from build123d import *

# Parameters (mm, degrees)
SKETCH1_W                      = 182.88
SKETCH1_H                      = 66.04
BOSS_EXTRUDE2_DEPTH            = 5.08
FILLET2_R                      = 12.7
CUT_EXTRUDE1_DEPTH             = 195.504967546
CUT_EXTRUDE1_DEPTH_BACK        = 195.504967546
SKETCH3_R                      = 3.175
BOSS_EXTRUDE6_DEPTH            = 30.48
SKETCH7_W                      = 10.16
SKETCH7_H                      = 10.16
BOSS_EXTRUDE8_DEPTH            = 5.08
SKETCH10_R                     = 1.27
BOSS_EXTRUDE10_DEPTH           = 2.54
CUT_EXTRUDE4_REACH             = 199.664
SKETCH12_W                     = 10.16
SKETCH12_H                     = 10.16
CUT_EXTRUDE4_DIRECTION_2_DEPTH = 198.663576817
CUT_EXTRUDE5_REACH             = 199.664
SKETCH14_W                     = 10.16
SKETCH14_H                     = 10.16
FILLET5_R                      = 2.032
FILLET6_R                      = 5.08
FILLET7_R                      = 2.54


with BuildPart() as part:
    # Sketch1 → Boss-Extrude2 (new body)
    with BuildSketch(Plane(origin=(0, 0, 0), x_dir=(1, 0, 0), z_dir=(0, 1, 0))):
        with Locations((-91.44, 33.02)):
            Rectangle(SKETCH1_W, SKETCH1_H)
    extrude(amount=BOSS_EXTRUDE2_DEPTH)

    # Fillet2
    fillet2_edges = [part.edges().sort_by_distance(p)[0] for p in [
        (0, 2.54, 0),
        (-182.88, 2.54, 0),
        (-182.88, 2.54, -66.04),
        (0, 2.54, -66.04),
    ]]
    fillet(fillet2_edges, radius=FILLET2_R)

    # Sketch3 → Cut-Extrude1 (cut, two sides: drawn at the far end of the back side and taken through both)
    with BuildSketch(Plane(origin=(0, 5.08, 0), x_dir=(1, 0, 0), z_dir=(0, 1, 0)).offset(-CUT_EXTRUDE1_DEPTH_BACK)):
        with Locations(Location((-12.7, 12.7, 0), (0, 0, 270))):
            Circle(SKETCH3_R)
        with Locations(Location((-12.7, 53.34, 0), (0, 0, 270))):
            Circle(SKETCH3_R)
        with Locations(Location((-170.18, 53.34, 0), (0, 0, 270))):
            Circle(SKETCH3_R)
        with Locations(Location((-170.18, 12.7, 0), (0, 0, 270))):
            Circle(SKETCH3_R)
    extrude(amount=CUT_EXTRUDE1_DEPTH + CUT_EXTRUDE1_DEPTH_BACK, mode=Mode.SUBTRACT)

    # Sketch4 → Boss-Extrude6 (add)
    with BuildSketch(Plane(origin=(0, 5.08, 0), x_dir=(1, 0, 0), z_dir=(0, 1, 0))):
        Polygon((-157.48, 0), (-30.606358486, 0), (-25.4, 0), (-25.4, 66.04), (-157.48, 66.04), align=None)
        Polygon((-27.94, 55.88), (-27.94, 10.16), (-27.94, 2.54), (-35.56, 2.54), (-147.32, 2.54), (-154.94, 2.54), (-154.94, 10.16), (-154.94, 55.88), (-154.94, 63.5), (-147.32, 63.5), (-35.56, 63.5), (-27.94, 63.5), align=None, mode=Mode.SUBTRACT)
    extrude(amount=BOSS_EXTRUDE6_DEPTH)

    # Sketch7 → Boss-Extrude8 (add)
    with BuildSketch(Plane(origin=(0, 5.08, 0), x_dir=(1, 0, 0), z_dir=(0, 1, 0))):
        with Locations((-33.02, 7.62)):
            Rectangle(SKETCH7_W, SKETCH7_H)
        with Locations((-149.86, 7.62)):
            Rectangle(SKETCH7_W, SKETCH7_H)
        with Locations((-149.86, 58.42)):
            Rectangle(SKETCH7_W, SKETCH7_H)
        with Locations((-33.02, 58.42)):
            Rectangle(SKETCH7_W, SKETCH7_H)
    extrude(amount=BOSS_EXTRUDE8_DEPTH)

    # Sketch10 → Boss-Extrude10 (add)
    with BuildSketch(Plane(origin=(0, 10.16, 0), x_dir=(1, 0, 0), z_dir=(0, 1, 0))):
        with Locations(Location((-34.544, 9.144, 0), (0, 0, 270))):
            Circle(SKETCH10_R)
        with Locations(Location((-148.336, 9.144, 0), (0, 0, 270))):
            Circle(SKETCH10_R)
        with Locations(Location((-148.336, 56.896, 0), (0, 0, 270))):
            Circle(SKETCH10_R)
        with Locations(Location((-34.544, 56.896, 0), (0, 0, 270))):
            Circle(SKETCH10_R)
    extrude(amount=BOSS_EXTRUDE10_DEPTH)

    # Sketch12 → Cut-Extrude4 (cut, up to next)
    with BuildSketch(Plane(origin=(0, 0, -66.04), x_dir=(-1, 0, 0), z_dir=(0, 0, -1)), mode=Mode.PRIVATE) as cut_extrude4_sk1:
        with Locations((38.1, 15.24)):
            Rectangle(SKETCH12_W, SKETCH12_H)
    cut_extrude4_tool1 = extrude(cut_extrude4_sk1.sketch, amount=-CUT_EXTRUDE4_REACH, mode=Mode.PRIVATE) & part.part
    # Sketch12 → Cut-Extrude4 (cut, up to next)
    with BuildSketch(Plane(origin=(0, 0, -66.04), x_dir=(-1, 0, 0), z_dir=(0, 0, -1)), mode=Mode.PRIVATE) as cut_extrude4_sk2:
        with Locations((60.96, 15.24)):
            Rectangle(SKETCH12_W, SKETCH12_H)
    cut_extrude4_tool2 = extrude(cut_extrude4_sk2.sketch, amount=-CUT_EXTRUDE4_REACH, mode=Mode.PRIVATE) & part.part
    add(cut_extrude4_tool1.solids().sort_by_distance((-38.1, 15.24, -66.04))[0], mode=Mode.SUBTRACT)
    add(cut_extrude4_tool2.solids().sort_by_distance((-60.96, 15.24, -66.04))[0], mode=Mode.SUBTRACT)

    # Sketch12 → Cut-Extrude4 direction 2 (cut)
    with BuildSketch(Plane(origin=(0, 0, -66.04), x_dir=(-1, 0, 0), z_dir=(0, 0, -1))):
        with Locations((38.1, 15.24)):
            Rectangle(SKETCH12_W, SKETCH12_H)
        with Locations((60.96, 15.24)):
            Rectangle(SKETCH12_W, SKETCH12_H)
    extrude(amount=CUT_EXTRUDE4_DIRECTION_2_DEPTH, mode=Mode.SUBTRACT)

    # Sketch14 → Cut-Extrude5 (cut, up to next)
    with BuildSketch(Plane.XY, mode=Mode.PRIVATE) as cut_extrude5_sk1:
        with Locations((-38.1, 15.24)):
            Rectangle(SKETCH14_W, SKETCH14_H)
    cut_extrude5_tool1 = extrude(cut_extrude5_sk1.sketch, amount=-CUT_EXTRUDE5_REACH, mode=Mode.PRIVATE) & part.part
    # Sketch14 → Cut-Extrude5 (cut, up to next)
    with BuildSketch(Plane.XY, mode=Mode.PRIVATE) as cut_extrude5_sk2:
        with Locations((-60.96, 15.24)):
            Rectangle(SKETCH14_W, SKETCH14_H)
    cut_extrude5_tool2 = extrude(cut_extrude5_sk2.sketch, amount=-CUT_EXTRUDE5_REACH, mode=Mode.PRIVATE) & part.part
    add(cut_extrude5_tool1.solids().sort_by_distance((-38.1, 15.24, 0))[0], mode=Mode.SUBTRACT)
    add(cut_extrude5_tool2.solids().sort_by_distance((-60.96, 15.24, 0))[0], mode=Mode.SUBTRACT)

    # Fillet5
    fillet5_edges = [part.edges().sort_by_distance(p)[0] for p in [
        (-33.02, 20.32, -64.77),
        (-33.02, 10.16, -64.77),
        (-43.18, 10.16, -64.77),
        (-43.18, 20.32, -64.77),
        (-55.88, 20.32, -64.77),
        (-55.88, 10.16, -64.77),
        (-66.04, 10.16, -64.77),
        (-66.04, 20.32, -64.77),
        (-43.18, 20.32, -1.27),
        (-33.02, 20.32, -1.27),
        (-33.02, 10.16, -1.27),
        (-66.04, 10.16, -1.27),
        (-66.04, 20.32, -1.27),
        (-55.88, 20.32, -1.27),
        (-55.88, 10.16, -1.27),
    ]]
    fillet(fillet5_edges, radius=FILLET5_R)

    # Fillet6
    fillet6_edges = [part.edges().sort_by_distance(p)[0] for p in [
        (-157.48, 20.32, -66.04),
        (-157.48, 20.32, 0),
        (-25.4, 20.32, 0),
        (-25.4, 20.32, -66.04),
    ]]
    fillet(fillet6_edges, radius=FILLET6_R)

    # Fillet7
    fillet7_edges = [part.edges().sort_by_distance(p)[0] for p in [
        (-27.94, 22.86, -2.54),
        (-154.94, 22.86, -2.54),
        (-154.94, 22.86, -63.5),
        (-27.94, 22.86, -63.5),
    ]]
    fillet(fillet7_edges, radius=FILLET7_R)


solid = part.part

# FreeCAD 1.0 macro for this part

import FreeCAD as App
import Part
import Sketcher

V = App.Vector
Q = App.Units.Quantity


def edges_at(feature, points):
    """Names of the edges that pass closest to the given points."""
    edges = feature.Shape.Edges
    near = lambda p: min(range(len(edges)), key=lambda i: edges[i].distToShape(Part.Vertex(*p))[0])
    return sorted({f"Edge{near(p) + 1}" for p in points})

doc = App.newDocument("Part")
body = doc.addObject("PartDesign::Body", "Body")

# Sketch on XZ plane
sketch1 = body.newObject("Sketcher::SketchObject", "Sketch")
sketch1.AttachmentSupport = (doc.getObject("XZ_Plane"), [""])
sketch1.MapMode = "FlatFace"
sketch1.addGeometry([
    Part.LineSegment(V(-183, -66, 0), V(-183, 0, 0)),
    Part.LineSegment(V(-183, 0, 0), V(0, 0, 0)),
    Part.LineSegment(V(0, 0, 0), V(0, -66, 0)),
    Part.LineSegment(V(0, -66, 0), V(-183, -66, 0)),
], False)
sketch1.addConstraint([
    Sketcher.Constraint("Coincident", 0, 2, 1, 1),
    Sketcher.Constraint("Coincident", 1, 2, 2, 1),
    Sketcher.Constraint("Coincident", 2, 2, 3, 1),
    Sketcher.Constraint("Coincident", 3, 2, 0, 1),
    Sketcher.Constraint("Vertical", 0),
    Sketcher.Constraint("Horizontal", 1),
    Sketcher.Constraint("Vertical", 2),
    Sketcher.Constraint("Horizontal", 3),
    Sketcher.Constraint("Coincident", 1, 2, -1, 1),
    Sketcher.Constraint("DistanceX", 1, 1, 1, 2, Q("7.2 in")),
    Sketcher.Constraint("DistanceY", 0, 1, 0, 2, Q("2.6 in")),
])
pad1 = body.newObject("PartDesign::Pad", "Pad")
pad1.Profile = sketch1
pad1.Length = Q("0.2 in")
pad1.Reversed = True
doc.recompute()

fillet = body.newObject("PartDesign::Fillet", "Fillet")
fillet.Base = (pad1, edges_at(pad1, [
    (0, 2.54, 0),
    (-182.88, 2.54, 0),
    (-182.88, 2.54, -66.04),
    (0, 2.54, -66.04),
]))
fillet.Radius = Q("0.5 in")

# Sketch on XZ plane
sketch2 = body.newObject("Sketcher::SketchObject", "Sketch001")
sketch2.AttachmentSupport = (doc.getObject("XZ_Plane"), [""])
sketch2.MapMode = "FlatFace"
sketch2.AttachmentOffset = App.Placement(V(0, 0, -0.2 * 25.4), App.Rotation())
sketch2.addGeometry([
    Part.Circle(V(-12.7, -12.7, 0), V(0, 0, 1), 3.2),
    Part.Circle(V(-12.7, -53.3, 0), V(0, 0, 1), 3.2),
    Part.Circle(V(-170.2, -53.3, 0), V(0, 0, 1), 3.2),
    Part.Circle(V(-170.2, -12.7, 0), V(0, 0, 1), 3.2),
], False)
sketch2.addConstraint([
    Sketcher.Constraint("Equal", 0, 1),
    Sketcher.Constraint("Equal", 1, 2),
    Sketcher.Constraint("Equal", 2, 3),
    Sketcher.Constraint("Horizontal", 1, 3, 2, 3),
    Sketcher.Constraint("Horizontal", 0, 3, 3, 3),
    Sketcher.Constraint("Vertical", 0, 3, 1, 3),
    Sketcher.Constraint("Vertical", 2, 3, 3, 3),
    Sketcher.Constraint("Diameter", 0, Q("0.25 in")),
    Sketcher.Constraint("DistanceX", 0, 3, -1, 1, Q("0.5 in")),
    Sketcher.Constraint("DistanceY", 0, 3, -1, 1, Q("0.5 in")),
    Sketcher.Constraint("DistanceY", 1, 3, -1, 1, Q("2.1 in")),
    Sketcher.Constraint("DistanceX", 2, 3, -1, 1, Q("6.7 in")),
])
pocket1 = body.newObject("PartDesign::Pocket", "Pocket")
pocket1.Profile = sketch2
pocket1.Type = "ThroughAll"
pocket1.Midplane = True

# Sketch on XZ plane
sketch3 = body.newObject("Sketcher::SketchObject", "Sketch002")
sketch3.AttachmentSupport = (doc.getObject("XZ_Plane"), [""])
sketch3.MapMode = "FlatFace"
sketch3.AttachmentOffset = App.Placement(V(0, 0, -0.2 * 25.4), App.Rotation())
sketch3.addGeometry([
    Part.LineSegment(V(-157, 0, 0), V(-25, 0, 0)),  # 0
    Part.LineSegment(V(-25, 0, 0), V(-25, -66, 0)),  # 1
    Part.LineSegment(V(-25, -66, 0), V(-157, -66, 0)),  # 2
    Part.LineSegment(V(-157, -66, 0), V(-157, 0, 0)),  # 3
    Part.LineSegment(V(-28, -64, 0), V(-28, -3, 0)),  # 4
    Part.LineSegment(V(-28, -3, 0), V(-155, -3, 0)),  # 5
    Part.LineSegment(V(-155, -3, 0), V(-155, -64, 0)),  # 6
    Part.LineSegment(V(-155, -64, 0), V(-28, -64, 0)),  # 7
], False)
sketch3.addConstraint([
    Sketcher.Constraint("Coincident", 0, 2, 1, 1),
    Sketcher.Constraint("Coincident", 1, 2, 2, 1),
    Sketcher.Constraint("Coincident", 2, 2, 3, 1),
    Sketcher.Constraint("Coincident", 3, 2, 0, 1),
    Sketcher.Constraint("Coincident", 4, 2, 5, 1),
    Sketcher.Constraint("Coincident", 5, 2, 6, 1),
    Sketcher.Constraint("Coincident", 6, 2, 7, 1),
    Sketcher.Constraint("Coincident", 7, 2, 4, 1),
    Sketcher.Constraint("Horizontal", 0),
    Sketcher.Constraint("Vertical", 1),
    Sketcher.Constraint("Horizontal", 2),
    Sketcher.Constraint("Vertical", 3),
    Sketcher.Constraint("Vertical", 4),
    Sketcher.Constraint("Horizontal", 5),
    Sketcher.Constraint("Vertical", 6),
    Sketcher.Constraint("Horizontal", 7),
    Sketcher.Constraint("PointOnObject", 0, 2, -1),
    Sketcher.Constraint("DistanceX", 5, 2, 5, 1, Q("5 in")),
    Sketcher.Constraint("DistanceX", 0, 1, 0, 2, Q("5.2 in")),
    Sketcher.Constraint("DistanceY", 1, 2, 1, 1, Q("2.6 in")),
    Sketcher.Constraint("DistanceY", 4, 1, 4, 2, Q("2.4 in")),
    Sketcher.Constraint("DistanceX", 0, 2, -1, 1, Q("1 in")),
    Sketcher.Constraint("DistanceX", 4, 2, -1, 1, Q("1.1 in")),
    Sketcher.Constraint("DistanceY", 4, 2, -1, 1, Q("0.1 in")),
])
pad2 = body.newObject("PartDesign::Pad", "Pad001")
pad2.Profile = sketch3
pad2.Length = Q("1.2 in")
pad2.Reversed = True

# Sketch on XZ plane
sketch4 = body.newObject("Sketcher::SketchObject", "Sketch003")
sketch4.AttachmentSupport = (doc.getObject("XZ_Plane"), [""])
sketch4.MapMode = "FlatFace"
sketch4.AttachmentOffset = App.Placement(V(0, 0, -0.2 * 25.4), App.Rotation())
sketch4.addGeometry([
    Part.LineSegment(V(-38, -13, 0), V(-38, -3, 0)),  # 0
    Part.LineSegment(V(-38, -3, 0), V(-28, -3, 0)),  # 1
    Part.LineSegment(V(-28, -3, 0), V(-28, -13, 0)),  # 2
    Part.LineSegment(V(-28, -13, 0), V(-38, -13, 0)),  # 3
    Part.LineSegment(V(-155, -13, 0), V(-155, -3, 0)),  # 4
    Part.LineSegment(V(-155, -3, 0), V(-145, -3, 0)),  # 5
    Part.LineSegment(V(-145, -3, 0), V(-145, -13, 0)),  # 6
    Part.LineSegment(V(-145, -13, 0), V(-155, -13, 0)),  # 7
    Part.LineSegment(V(-155, -64, 0), V(-155, -53, 0)),  # 8
    Part.LineSegment(V(-155, -53, 0), V(-145, -53, 0)),  # 9
    Part.LineSegment(V(-145, -53, 0), V(-145, -64, 0)),  # 10
    Part.LineSegment(V(-145, -64, 0), V(-155, -64, 0)),  # 11
    Part.LineSegment(V(-38, -64, 0), V(-38, -53, 0)),  # 12
    Part.LineSegment(V(-38, -53, 0), V(-28, -53, 0)),  # 13
    Part.LineSegment(V(-28, -53, 0), V(-28, -64, 0)),  # 14
    Part.LineSegment(V(-28, -64, 0), V(-38, -64, 0)),  # 15
], False)
sketch4.addConstraint([
    Sketcher.Constraint("Coincident", 0, 2, 1, 1),
    Sketcher.Constraint("Coincident", 1, 2, 2, 1),
    Sketcher.Constraint("Coincident", 2, 2, 3, 1),
    Sketcher.Constraint("Coincident", 3, 2, 0, 1),
    Sketcher.Constraint("Coincident", 4, 2, 5, 1),
    Sketcher.Constraint("Coincident", 5, 2, 6, 1),
    Sketcher.Constraint("Coincident", 6, 2, 7, 1),
    Sketcher.Constraint("Coincident", 7, 2, 4, 1),
    Sketcher.Constraint("Coincident", 8, 2, 9, 1),
    Sketcher.Constraint("Coincident", 9, 2, 10, 1),
    Sketcher.Constraint("Coincident", 10, 2, 11, 1),
    Sketcher.Constraint("Coincident", 11, 2, 8, 1),
    Sketcher.Constraint("Coincident", 12, 2, 13, 1),
    Sketcher.Constraint("Coincident", 13, 2, 14, 1),
    Sketcher.Constraint("Coincident", 14, 2, 15, 1),
    Sketcher.Constraint("Coincident", 15, 2, 12, 1),
    Sketcher.Constraint("Vertical", 0),
    Sketcher.Constraint("Horizontal", 1),
    Sketcher.Constraint("Vertical", 2),
    Sketcher.Constraint("Horizontal", 3),
    Sketcher.Constraint("Vertical", 4),
    Sketcher.Constraint("Horizontal", 5),
    Sketcher.Constraint("Vertical", 6),
    Sketcher.Constraint("Horizontal", 7),
    Sketcher.Constraint("Vertical", 8),
    Sketcher.Constraint("Horizontal", 9),
    Sketcher.Constraint("Vertical", 10),
    Sketcher.Constraint("Horizontal", 11),
    Sketcher.Constraint("Vertical", 12),
    Sketcher.Constraint("Horizontal", 13),
    Sketcher.Constraint("Vertical", 14),
    Sketcher.Constraint("Horizontal", 15),
    Sketcher.Constraint("Horizontal", 1, 2, 4, 2),
    Sketcher.Constraint("Horizontal", 3, 2, 6, 2),
    Sketcher.Constraint("Horizontal", 9, 2, 12, 2),
    Sketcher.Constraint("Horizontal", 11, 2, 14, 2),
    Sketcher.Constraint("Vertical", 7, 2, 8, 2),
    Sketcher.Constraint("Vertical", 6, 2, 9, 2),
    Sketcher.Constraint("Vertical", 3, 2, 12, 2),
    Sketcher.Constraint("Vertical", 2, 2, 13, 2),
    Sketcher.Constraint("Equal", 3, 5),
    Sketcher.Constraint("Equal", 15, 0),
    Sketcher.Constraint("Equal", 6, 8),
    Sketcher.Constraint("DistanceX", 1, 1, 1, 2, Q("0.4 in")),
    Sketcher.Constraint("DistanceX", 4, 2, 1, 2, Q("5 in")),
    Sketcher.Constraint("DistanceY", 8, 2, 4, 2, Q("2 in")),
    Sketcher.Constraint("DistanceX", 0, 2, -1, 1, Q("1.5 in")),
    Sketcher.Constraint("DistanceY", 0, 2, -1, 1, Q("0.1 in")),
])
pad3 = body.newObject("PartDesign::Pad", "Pad002")
pad3.Profile = sketch4
pad3.Length = Q("0.2 in")
pad3.Reversed = True

# Sketch on XZ plane
sketch5 = body.newObject("Sketcher::SketchObject", "Sketch004")
sketch5.AttachmentSupport = (doc.getObject("XZ_Plane"), [""])
sketch5.MapMode = "FlatFace"
sketch5.AttachmentOffset = App.Placement(V(0, 0, -0.4 * 25.4), App.Rotation())
sketch5.addGeometry([
    Part.Circle(V(-34.5, -9.1, 0), V(0, 0, 1), 1.3),
    Part.Circle(V(-148.3, -9.1, 0), V(0, 0, 1), 1.3),
    Part.Circle(V(-148.3, -56.9, 0), V(0, 0, 1), 1.3),
    Part.Circle(V(-34.5, -56.9, 0), V(0, 0, 1), 1.3),
], False)
sketch5.addConstraint([
    Sketcher.Constraint("Equal", 0, 1),
    Sketcher.Constraint("Equal", 1, 2),
    Sketcher.Constraint("Equal", 2, 3),
    Sketcher.Constraint("Horizontal", 0, 3, 1, 3),
    Sketcher.Constraint("Horizontal", 2, 3, 3, 3),
    Sketcher.Constraint("Vertical", 1, 3, 2, 3),
    Sketcher.Constraint("Vertical", 0, 3, 3, 3),
    Sketcher.Constraint("Diameter", 0, Q("0.1 in")),
    Sketcher.Constraint("DistanceX", 0, 3, -1, 1, Q("1.36 in")),
    Sketcher.Constraint("DistanceY", 0, 3, -1, 1, Q("0.36 in")),
    Sketcher.Constraint("DistanceX", 1, 3, -1, 1, Q("5.84 in")),
    Sketcher.Constraint("DistanceY", 2, 3, -1, 1, Q("2.24 in")),
])
pad4 = body.newObject("PartDesign::Pad", "Pad003")
pad4.Profile = sketch5
pad4.Length = Q("0.1 in")
pad4.Reversed = True

# Sketch on XY plane
sketch6 = body.newObject("Sketcher::SketchObject", "Sketch005")
sketch6.AttachmentSupport = (doc.getObject("XY_Plane"), [""])
sketch6.MapMode = "FlatFace"
sketch6.AttachmentOffset = App.Placement(V(0, 0, -2.6 * 25.4), App.Rotation())
sketch6.addGeometry([
    Part.LineSegment(V(-33, 20, 0), V(-33, 10, 0)),
    Part.LineSegment(V(-33, 10, 0), V(-43, 10, 0)),
    Part.LineSegment(V(-43, 10, 0), V(-43, 20, 0)),
    Part.LineSegment(V(-43, 20, 0), V(-33, 20, 0)),
], False)
sketch6.addConstraint([
    Sketcher.Constraint("Coincident", 0, 2, 1, 1),
    Sketcher.Constraint("Coincident", 1, 2, 2, 1),
    Sketcher.Constraint("Coincident", 2, 2, 3, 1),
    Sketcher.Constraint("Coincident", 3, 2, 0, 1),
    Sketcher.Constraint("Vertical", 0),
    Sketcher.Constraint("Horizontal", 1),
    Sketcher.Constraint("Vertical", 2),
    Sketcher.Constraint("Horizontal", 3),
    Sketcher.Constraint("Equal", 3, 0),
    Sketcher.Constraint("DistanceX", 1, 2, 1, 1, Q("0.4 in")),
    Sketcher.Constraint("DistanceX", 0, 2, -1, 1, Q("1.3 in")),
    Sketcher.Constraint("DistanceY", -1, 1, 0, 2, Q("0.4 in")),
])
pocket2 = body.newObject("PartDesign::Pocket", "Pocket001")
pocket2.Profile = sketch6
pocket2.Type = "UpToFirst"
pocket2.Reversed = True

# Sketch on XY plane
sketch7 = body.newObject("Sketcher::SketchObject", "Sketch006")
sketch7.AttachmentSupport = (doc.getObject("XY_Plane"), [""])
sketch7.MapMode = "FlatFace"
sketch7.AttachmentOffset = App.Placement(V(0, 0, -2.6 * 25.4), App.Rotation())
sketch7.addGeometry([
    Part.LineSegment(V(-56, 20, 0), V(-56, 10, 0)),
    Part.LineSegment(V(-56, 10, 0), V(-66, 10, 0)),
    Part.LineSegment(V(-66, 10, 0), V(-66, 20, 0)),
    Part.LineSegment(V(-66, 20, 0), V(-56, 20, 0)),
], False)
sketch7.addConstraint([
    Sketcher.Constraint("Coincident", 0, 2, 1, 1),
    Sketcher.Constraint("Coincident", 1, 2, 2, 1),
    Sketcher.Constraint("Coincident", 2, 2, 3, 1),
    Sketcher.Constraint("Coincident", 3, 2, 0, 1),
    Sketcher.Constraint("Vertical", 0),
    Sketcher.Constraint("Horizontal", 1),
    Sketcher.Constraint("Vertical", 2),
    Sketcher.Constraint("Horizontal", 3),
    Sketcher.Constraint("Equal", 3, 0),
    Sketcher.Constraint("DistanceX", 1, 2, 1, 1, Q("0.4 in")),
    Sketcher.Constraint("DistanceX", 0, 2, -1, 1, Q("2.2 in")),
    Sketcher.Constraint("DistanceY", -1, 1, 0, 2, Q("0.4 in")),
])
pocket3 = body.newObject("PartDesign::Pocket", "Pocket002")
pocket3.Profile = sketch7
pocket3.Type = "UpToFirst"
pocket3.Reversed = True

# Sketch on XY plane
sketch8 = body.newObject("Sketcher::SketchObject", "Sketch007")
sketch8.AttachmentSupport = (doc.getObject("XY_Plane"), [""])
sketch8.MapMode = "FlatFace"
sketch8.AttachmentOffset = App.Placement(V(0, 0, -2.6 * 25.4), App.Rotation())
sketch8.addGeometry([
    Part.LineSegment(V(-33, 20, 0), V(-33, 10, 0)),  # 0
    Part.LineSegment(V(-33, 10, 0), V(-43, 10, 0)),  # 1
    Part.LineSegment(V(-43, 10, 0), V(-43, 20, 0)),  # 2
    Part.LineSegment(V(-43, 20, 0), V(-33, 20, 0)),  # 3
    Part.LineSegment(V(-56, 20, 0), V(-56, 10, 0)),  # 4
    Part.LineSegment(V(-56, 10, 0), V(-66, 10, 0)),  # 5
    Part.LineSegment(V(-66, 10, 0), V(-66, 20, 0)),  # 6
    Part.LineSegment(V(-66, 20, 0), V(-56, 20, 0)),  # 7
], False)
sketch8.addConstraint([
    Sketcher.Constraint("Coincident", 0, 2, 1, 1),
    Sketcher.Constraint("Coincident", 1, 2, 2, 1),
    Sketcher.Constraint("Coincident", 2, 2, 3, 1),
    Sketcher.Constraint("Coincident", 3, 2, 0, 1),
    Sketcher.Constraint("Coincident", 4, 2, 5, 1),
    Sketcher.Constraint("Coincident", 5, 2, 6, 1),
    Sketcher.Constraint("Coincident", 6, 2, 7, 1),
    Sketcher.Constraint("Coincident", 7, 2, 4, 1),
    Sketcher.Constraint("Vertical", 0),
    Sketcher.Constraint("Horizontal", 1),
    Sketcher.Constraint("Vertical", 2),
    Sketcher.Constraint("Horizontal", 3),
    Sketcher.Constraint("Vertical", 4),
    Sketcher.Constraint("Horizontal", 5),
    Sketcher.Constraint("Vertical", 6),
    Sketcher.Constraint("Horizontal", 7),
    Sketcher.Constraint("Horizontal", 1, 2, 4, 2),
    Sketcher.Constraint("Horizontal", 3, 2, 6, 2),
    Sketcher.Constraint("Equal", 3, 5),
    Sketcher.Constraint("Equal", 7, 0),
    Sketcher.Constraint("DistanceX", 1, 2, 1, 1, Q("0.4 in")),
    Sketcher.Constraint("DistanceX", 0, 2, -1, 1, Q("1.3 in")),
    Sketcher.Constraint("DistanceY", -1, 1, 0, 2, Q("0.4 in")),
    Sketcher.Constraint("DistanceX", 4, 2, -1, 1, Q("2.2 in")),
])
pocket4 = body.newObject("PartDesign::Pocket", "Pocket003")
pocket4.Profile = sketch8
pocket4.Length = 198.663577

# Sketch on XY plane
sketch9 = body.newObject("Sketcher::SketchObject", "Sketch008")
sketch9.AttachmentSupport = (doc.getObject("XY_Plane"), [""])
sketch9.MapMode = "FlatFace"
sketch9.addGeometry([
    Part.LineSegment(V(-43, 20, 0), V(-43, 10, 0)),
    Part.LineSegment(V(-43, 10, 0), V(-33, 10, 0)),
    Part.LineSegment(V(-33, 10, 0), V(-33, 20, 0)),
    Part.LineSegment(V(-33, 20, 0), V(-43, 20, 0)),
], False)
sketch9.addConstraint([
    Sketcher.Constraint("Coincident", 0, 2, 1, 1),
    Sketcher.Constraint("Coincident", 1, 2, 2, 1),
    Sketcher.Constraint("Coincident", 2, 2, 3, 1),
    Sketcher.Constraint("Coincident", 3, 2, 0, 1),
    Sketcher.Constraint("Vertical", 0),
    Sketcher.Constraint("Horizontal", 1),
    Sketcher.Constraint("Vertical", 2),
    Sketcher.Constraint("Horizontal", 3),
    Sketcher.Constraint("Equal", 3, 0),
    Sketcher.Constraint("DistanceX", 1, 1, 1, 2, Q("0.4 in")),
    Sketcher.Constraint("DistanceX", 0, 2, -1, 1, Q("1.7 in")),
    Sketcher.Constraint("DistanceY", -1, 1, 0, 2, Q("0.4 in")),
])
pocket5 = body.newObject("PartDesign::Pocket", "Pocket004")
pocket5.Profile = sketch9
pocket5.Type = "UpToFirst"

# Sketch on XY plane
sketch10 = body.newObject("Sketcher::SketchObject", "Sketch009")
sketch10.AttachmentSupport = (doc.getObject("XY_Plane"), [""])
sketch10.MapMode = "FlatFace"
sketch10.addGeometry([
    Part.LineSegment(V(-66, 20, 0), V(-66, 10, 0)),
    Part.LineSegment(V(-66, 10, 0), V(-56, 10, 0)),
    Part.LineSegment(V(-56, 10, 0), V(-56, 20, 0)),
    Part.LineSegment(V(-56, 20, 0), V(-66, 20, 0)),
], False)
sketch10.addConstraint([
    Sketcher.Constraint("Coincident", 0, 2, 1, 1),
    Sketcher.Constraint("Coincident", 1, 2, 2, 1),
    Sketcher.Constraint("Coincident", 2, 2, 3, 1),
    Sketcher.Constraint("Coincident", 3, 2, 0, 1),
    Sketcher.Constraint("Vertical", 0),
    Sketcher.Constraint("Horizontal", 1),
    Sketcher.Constraint("Vertical", 2),
    Sketcher.Constraint("Horizontal", 3),
    Sketcher.Constraint("Equal", 3, 0),
    Sketcher.Constraint("DistanceX", 1, 1, 1, 2, Q("0.4 in")),
    Sketcher.Constraint("DistanceX", 0, 2, -1, 1, Q("2.6 in")),
    Sketcher.Constraint("DistanceY", -1, 1, 0, 2, Q("0.4 in")),
])
pocket6 = body.newObject("PartDesign::Pocket", "Pocket005")
pocket6.Profile = sketch10
pocket6.Type = "UpToFirst"
doc.recompute()

fillet2 = body.newObject("PartDesign::Fillet", "Fillet001")
fillet2.Base = (pocket6, edges_at(pocket6, [
    (-33.02, 20.32, -64.77),
    (-33.02, 10.16, -64.77),
    (-43.18, 10.16, -64.77),
    (-43.18, 20.32, -64.77),
    (-55.88, 20.32, -64.77),
    (-55.88, 10.16, -64.77),
    (-66.04, 10.16, -64.77),
    (-66.04, 20.32, -64.77),
    (-43.18, 20.32, -1.27),
    (-33.02, 20.32, -1.27),
    (-33.02, 10.16, -1.27),
    (-66.04, 10.16, -1.27),
    (-66.04, 20.32, -1.27),
    (-55.88, 20.32, -1.27),
    (-55.88, 10.16, -1.27),
]))
fillet2.Radius = Q("0.08 in")
doc.recompute()

fillet3 = body.newObject("PartDesign::Fillet", "Fillet002")
fillet3.Base = (fillet2, edges_at(fillet2, [
    (-157.48, 20.32, -66.04),
    (-157.48, 20.32, 0),
    (-25.4, 20.32, 0),
    (-25.4, 20.32, -66.04),
]))
fillet3.Radius = Q("0.2 in")
doc.recompute()

fillet4 = body.newObject("PartDesign::Fillet", "Fillet003")
fillet4.Base = (fillet3, edges_at(fillet3, [
    (-27.94, 22.86, -2.54),
    (-154.94, 22.86, -2.54),
    (-154.94, 22.86, -63.5),
    (-27.94, 22.86, -63.5),
]))
fillet4.Radius = Q("0.1 in")

doc.recompute()
